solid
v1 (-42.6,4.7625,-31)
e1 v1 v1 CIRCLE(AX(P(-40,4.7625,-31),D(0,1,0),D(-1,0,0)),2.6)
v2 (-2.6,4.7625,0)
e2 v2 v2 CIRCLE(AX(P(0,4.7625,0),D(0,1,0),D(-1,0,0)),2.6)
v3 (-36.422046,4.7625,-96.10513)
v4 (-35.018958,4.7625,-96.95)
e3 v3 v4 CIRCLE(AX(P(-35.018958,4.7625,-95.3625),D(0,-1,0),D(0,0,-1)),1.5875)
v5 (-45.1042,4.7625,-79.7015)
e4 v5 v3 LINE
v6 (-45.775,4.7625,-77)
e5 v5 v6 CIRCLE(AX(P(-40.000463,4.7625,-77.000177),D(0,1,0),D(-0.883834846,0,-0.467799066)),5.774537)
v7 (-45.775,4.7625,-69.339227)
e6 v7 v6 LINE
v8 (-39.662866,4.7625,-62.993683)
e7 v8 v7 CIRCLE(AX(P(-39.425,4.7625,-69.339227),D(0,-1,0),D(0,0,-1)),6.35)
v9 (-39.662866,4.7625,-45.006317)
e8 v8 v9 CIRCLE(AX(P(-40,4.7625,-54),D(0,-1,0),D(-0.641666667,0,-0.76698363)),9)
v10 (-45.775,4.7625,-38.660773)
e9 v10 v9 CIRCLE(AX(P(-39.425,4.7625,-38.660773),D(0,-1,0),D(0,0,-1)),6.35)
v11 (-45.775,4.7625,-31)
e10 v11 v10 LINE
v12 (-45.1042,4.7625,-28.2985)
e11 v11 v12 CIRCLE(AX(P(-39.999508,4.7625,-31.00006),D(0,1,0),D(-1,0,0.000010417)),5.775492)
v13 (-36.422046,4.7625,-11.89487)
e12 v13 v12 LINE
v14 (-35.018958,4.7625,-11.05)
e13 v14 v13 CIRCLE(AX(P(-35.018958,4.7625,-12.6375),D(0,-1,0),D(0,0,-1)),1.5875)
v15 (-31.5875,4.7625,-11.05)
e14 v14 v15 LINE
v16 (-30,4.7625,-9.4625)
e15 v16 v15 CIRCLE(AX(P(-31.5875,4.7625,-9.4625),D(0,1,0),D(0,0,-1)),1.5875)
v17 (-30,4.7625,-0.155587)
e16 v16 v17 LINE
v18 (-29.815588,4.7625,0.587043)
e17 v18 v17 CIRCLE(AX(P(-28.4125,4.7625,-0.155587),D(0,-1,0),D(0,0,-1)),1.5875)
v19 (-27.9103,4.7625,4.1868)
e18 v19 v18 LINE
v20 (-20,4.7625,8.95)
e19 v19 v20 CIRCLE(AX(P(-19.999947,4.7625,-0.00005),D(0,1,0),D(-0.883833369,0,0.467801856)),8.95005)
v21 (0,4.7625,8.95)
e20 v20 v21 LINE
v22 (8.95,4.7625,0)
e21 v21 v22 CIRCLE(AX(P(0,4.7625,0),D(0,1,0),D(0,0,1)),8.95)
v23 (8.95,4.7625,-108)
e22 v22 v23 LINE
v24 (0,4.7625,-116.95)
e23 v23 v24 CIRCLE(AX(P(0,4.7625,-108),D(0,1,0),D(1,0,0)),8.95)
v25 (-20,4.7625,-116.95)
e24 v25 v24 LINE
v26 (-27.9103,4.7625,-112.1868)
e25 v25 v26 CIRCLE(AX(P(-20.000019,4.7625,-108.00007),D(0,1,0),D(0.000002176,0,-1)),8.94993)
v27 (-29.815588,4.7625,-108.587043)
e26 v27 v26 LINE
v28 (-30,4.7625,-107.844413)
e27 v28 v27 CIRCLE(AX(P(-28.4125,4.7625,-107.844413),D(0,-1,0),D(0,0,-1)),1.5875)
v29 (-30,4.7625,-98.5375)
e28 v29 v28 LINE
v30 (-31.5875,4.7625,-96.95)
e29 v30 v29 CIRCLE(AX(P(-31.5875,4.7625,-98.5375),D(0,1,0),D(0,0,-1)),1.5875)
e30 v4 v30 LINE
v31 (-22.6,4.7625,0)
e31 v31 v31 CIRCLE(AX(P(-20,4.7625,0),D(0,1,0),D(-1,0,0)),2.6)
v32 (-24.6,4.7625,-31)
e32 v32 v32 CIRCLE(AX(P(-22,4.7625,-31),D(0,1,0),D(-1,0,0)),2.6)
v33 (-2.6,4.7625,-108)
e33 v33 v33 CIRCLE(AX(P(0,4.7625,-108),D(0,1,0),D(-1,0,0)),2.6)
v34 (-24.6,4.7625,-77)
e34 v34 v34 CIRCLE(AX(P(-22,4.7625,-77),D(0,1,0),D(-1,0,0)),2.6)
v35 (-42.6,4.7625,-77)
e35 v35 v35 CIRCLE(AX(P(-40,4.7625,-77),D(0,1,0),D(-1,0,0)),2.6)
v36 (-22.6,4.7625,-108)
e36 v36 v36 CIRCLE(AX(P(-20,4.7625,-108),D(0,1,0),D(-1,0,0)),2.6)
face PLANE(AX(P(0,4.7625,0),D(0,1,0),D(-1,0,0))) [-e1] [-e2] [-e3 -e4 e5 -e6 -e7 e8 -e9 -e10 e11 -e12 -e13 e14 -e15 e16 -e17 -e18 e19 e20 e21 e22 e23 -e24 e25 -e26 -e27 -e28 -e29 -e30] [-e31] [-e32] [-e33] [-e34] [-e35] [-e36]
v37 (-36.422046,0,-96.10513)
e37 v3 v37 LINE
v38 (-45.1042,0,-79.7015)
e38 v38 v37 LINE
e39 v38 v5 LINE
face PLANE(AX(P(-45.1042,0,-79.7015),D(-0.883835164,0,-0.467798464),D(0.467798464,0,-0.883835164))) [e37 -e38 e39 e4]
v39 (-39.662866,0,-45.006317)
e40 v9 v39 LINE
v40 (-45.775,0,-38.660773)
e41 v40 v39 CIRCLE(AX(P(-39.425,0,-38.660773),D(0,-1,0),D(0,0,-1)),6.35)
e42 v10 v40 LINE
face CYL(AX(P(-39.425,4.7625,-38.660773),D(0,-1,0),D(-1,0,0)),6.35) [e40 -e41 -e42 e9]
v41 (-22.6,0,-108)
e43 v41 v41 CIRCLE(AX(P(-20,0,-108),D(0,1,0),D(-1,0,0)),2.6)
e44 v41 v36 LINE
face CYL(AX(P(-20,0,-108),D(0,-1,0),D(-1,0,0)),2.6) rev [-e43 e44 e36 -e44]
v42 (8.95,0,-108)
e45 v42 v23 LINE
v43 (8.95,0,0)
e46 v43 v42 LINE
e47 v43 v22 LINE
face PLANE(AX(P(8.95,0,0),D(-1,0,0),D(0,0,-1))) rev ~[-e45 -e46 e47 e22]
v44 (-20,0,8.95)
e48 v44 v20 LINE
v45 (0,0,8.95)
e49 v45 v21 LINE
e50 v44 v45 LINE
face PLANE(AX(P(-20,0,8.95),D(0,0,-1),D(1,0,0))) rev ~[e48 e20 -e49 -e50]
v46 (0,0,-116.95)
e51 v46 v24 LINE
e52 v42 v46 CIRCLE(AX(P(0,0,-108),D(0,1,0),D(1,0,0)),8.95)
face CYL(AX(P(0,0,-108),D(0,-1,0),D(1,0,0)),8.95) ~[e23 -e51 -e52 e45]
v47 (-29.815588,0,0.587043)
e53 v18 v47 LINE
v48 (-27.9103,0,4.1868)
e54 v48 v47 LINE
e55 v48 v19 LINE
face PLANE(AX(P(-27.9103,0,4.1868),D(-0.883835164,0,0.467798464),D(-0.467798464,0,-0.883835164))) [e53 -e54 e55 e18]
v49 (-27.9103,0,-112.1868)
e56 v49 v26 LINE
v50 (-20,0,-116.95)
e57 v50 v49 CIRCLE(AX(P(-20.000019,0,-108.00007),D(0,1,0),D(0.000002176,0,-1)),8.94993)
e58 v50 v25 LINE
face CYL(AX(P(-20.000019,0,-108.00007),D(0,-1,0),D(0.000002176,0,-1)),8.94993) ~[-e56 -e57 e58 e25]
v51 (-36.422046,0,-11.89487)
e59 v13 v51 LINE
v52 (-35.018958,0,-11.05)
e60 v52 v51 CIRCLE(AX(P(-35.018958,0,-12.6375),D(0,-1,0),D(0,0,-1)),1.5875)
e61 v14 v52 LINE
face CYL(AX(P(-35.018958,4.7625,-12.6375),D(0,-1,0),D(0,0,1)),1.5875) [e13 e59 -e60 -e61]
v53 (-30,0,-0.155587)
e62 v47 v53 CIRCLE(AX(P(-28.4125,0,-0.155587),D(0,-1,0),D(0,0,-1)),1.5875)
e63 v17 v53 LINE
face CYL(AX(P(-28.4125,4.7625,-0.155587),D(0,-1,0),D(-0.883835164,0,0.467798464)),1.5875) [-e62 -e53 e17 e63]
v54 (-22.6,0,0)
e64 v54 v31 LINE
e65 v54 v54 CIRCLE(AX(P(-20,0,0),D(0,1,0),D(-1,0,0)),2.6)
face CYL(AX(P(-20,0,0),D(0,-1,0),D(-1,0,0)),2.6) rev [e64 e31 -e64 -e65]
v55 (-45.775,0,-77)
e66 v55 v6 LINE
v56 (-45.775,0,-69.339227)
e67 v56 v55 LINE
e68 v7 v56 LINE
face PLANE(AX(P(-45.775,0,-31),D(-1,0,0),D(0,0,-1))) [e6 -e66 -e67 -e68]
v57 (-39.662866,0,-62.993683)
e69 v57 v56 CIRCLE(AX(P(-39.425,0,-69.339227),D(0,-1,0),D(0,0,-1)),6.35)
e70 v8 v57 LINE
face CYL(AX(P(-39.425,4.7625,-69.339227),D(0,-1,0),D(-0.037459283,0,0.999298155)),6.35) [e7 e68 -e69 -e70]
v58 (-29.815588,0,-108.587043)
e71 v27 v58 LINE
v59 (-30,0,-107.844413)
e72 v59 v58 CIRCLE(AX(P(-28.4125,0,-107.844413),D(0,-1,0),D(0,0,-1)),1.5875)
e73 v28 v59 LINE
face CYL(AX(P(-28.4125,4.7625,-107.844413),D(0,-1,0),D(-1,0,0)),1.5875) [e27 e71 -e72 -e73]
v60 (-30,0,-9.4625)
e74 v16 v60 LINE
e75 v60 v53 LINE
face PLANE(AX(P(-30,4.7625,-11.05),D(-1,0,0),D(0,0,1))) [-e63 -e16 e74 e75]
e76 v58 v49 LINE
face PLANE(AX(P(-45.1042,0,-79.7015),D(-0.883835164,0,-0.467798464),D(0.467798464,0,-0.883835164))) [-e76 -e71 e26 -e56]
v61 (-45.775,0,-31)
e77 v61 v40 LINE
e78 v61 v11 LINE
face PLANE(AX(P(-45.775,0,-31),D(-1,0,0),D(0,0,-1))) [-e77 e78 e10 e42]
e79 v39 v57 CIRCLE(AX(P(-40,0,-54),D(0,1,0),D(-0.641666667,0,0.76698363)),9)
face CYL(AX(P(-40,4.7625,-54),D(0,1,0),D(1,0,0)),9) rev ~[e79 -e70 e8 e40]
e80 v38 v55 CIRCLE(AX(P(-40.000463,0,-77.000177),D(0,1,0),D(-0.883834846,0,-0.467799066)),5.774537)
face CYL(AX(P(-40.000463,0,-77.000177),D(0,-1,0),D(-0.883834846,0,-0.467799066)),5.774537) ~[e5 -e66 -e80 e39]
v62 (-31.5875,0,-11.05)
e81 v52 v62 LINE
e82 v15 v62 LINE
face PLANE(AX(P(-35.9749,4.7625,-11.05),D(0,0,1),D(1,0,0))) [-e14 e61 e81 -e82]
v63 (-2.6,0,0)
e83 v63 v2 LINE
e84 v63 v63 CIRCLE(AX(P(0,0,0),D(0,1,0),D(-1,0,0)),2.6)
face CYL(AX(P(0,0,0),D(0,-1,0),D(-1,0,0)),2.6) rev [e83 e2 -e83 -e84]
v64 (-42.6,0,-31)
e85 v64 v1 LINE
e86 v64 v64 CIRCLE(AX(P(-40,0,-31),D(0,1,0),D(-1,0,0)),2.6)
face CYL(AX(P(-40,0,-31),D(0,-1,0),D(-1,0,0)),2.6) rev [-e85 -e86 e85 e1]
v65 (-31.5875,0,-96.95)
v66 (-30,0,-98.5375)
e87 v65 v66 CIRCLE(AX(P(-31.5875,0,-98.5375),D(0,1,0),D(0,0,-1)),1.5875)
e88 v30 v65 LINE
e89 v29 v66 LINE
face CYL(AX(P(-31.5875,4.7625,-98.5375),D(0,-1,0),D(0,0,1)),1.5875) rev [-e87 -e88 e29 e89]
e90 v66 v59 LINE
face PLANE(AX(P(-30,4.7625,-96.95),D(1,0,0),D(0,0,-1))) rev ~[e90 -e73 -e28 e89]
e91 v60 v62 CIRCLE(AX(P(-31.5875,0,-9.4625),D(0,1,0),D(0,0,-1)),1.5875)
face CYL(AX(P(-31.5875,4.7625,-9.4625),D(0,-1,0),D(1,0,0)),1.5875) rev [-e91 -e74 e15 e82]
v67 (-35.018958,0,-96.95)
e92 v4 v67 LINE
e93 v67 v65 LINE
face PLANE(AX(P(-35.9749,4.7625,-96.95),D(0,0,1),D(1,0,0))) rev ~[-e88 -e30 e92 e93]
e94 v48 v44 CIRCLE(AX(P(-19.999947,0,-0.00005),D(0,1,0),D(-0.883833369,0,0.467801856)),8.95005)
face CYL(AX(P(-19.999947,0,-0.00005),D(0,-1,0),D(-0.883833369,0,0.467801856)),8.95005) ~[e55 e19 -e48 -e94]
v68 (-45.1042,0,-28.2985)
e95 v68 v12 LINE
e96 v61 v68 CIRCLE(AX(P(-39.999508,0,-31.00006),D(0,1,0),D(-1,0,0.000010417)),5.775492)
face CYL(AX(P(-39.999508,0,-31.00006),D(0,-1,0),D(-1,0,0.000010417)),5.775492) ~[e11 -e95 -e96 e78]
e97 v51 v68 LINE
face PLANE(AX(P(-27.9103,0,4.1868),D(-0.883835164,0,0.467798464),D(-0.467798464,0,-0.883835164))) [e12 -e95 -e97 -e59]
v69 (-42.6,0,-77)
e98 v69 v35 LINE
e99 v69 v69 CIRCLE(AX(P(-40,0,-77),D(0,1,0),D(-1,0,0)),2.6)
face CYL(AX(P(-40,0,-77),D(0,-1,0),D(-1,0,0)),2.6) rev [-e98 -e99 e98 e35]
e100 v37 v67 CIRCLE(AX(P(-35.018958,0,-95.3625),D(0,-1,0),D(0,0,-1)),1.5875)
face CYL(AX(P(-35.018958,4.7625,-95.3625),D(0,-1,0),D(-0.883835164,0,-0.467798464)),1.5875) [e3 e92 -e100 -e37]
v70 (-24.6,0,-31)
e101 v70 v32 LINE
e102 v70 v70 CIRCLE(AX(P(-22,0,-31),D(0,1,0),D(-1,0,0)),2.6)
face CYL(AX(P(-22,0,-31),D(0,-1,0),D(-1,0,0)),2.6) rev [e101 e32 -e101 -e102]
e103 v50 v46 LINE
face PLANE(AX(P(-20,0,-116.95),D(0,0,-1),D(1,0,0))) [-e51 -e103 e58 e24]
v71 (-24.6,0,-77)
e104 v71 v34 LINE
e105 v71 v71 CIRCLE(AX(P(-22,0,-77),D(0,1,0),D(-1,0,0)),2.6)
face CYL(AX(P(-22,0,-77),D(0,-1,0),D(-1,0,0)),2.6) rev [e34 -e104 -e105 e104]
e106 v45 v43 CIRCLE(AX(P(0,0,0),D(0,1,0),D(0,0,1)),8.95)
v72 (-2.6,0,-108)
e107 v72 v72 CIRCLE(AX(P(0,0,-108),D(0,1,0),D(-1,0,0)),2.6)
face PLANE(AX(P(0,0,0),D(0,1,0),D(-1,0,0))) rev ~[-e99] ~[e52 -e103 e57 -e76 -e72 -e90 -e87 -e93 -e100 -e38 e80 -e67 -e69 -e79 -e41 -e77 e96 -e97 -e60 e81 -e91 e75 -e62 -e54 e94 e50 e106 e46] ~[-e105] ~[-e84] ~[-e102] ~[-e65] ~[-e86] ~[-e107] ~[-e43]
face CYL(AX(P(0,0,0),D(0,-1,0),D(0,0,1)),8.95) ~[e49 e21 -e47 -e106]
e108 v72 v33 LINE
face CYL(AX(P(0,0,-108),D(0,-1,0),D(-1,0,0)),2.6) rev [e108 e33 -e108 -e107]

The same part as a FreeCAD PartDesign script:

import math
import FreeCAD as App
import Part
import Sketcher

V = App.Vector


def edges_at(feature, points):
    """Names of the edges that pass closest to the given points."""
    edges = feature.Shape.Edges
    near = lambda p: min(range(len(edges)), key=lambda i: edges[i].distToShape(Part.Vertex(*p))[0])
    return sorted({f"Edge{near(p) + 1}" for p in points})


def add_polygon(sketch, points):
    """Adds a closed chain of lines whose ends are joined by coincident constraints."""
    first, n = sketch.GeometryCount, len(points)
    for a, b in zip(points, points[1:] + points[:1]):
        sketch.addGeometry(Part.LineSegment(App.Vector(*a, 0), App.Vector(*b, 0)), False)
    for i in range(n):
        sketch.addConstraint(Sketcher.Constraint("Coincident", first + i, 2, first + (i + 1) % n, 1))

doc = App.newDocument("Part")
params = doc.addObject("Spreadsheet::Sheet", "Params")
for row, (alias, value) in enumerate([
    ("sketch1_diameter", "5.2 mm"),
    ("sketch1_width", "20 mm"),
    ("sketch1_height", "46 mm"),
    ("sketch1_radius", "8.95 mm"),
    ("pad1_length", "4.7625 mm"),
    ("sketch2_radius", "9 mm"),
    ("fillet_radius", "6.35 mm"),
    ("fillet2_radius", "1.5875 mm"),
], start=1):
    params.set(f"A{row}", alias)
    params.set(f"B{row}", "=" + value)
    params.setAlias(f"B{row}", alias)

body = doc.addObject("PartDesign::Body", "Body")

sketch1 = body.newObject("Sketcher::SketchObject", "Sketch")
sketch1.AttachmentSupport = (doc.getObject("XZ_Plane"), [""])
sketch1.MapMode = "FlatFace"
sketch1.addGeometry(Part.LineSegment(V(-45.1, -28.3, 0), V(-27.9, 4.2, 0)), False)
sketch1.addGeometry(Part.ArcOfCircle(Part.Circle(V(-20, 0, 0), V(0, 0, 1), 8.9), math.radians(90), math.radians(152)), False)
sketch1.addGeometry(Part.LineSegment(V(-20, 8.9, 0), V(0, 8.9, 0)), False)
sketch1.addGeometry(Part.ArcOfCircle(Part.Circle(V(0, 0, 0), V(0, 0, 1), 8.9), math.radians(0), math.radians(90)), False)
sketch1.addGeometry(Part.LineSegment(V(8.9, 0, 0), V(8.9, -108, 0)), False)
sketch1.addGeometry(Part.ArcOfCircle(Part.Circle(V(0, -108, 0), V(0, 0, 1), 8.9), math.radians(-90), math.radians(0)), False)
sketch1.addGeometry(Part.LineSegment(V(0, -117, 0), V(-20, -117, 0)), False)
sketch1.addGeometry(Part.ArcOfCircle(Part.Circle(V(-20, -108, 0), V(0, 0, 1), 8.9), math.radians(-152), math.radians(-90)), False)
sketch1.addGeometry(Part.LineSegment(V(-27.9, -112.2, 0), V(-45.1, -79.7, 0)), False)
sketch1.addGeometry(Part.ArcOfCircle(Part.Circle(V(-40, -77, 0), V(0, 0, 1), 5.8), math.radians(180), math.radians(208)), False)
sketch1.addGeometry(Part.LineSegment(V(-45.8, -77, 0), V(-45.8, -31, 0)), False)
sketch1.addGeometry(Part.ArcOfCircle(Part.Circle(V(-40, -31, 0), V(0, 0, 1), 5.8), math.radians(152), math.radians(180)), False)
sketch1.addGeometry(Part.Circle(V(0, -108, 0), V(0, 0, 1), 2.6), False)
sketch1.addGeometry(Part.Circle(V(-20, -108, 0), V(0, 0, 1), 2.6), False)
sketch1.addGeometry(Part.Circle(V(-22, -77, 0), V(0, 0, 1), 2.6), False)
sketch1.addGeometry(Part.Circle(V(-40, -77, 0), V(0, 0, 1), 2.6), False)
sketch1.addGeometry(Part.Circle(V(0, 0, 0), V(0, 0, 1), 2.6), False)
sketch1.addGeometry(Part.Circle(V(-22, -31, 0), V(0, 0, 1), 2.6), False)
sketch1.addGeometry(Part.Circle(V(-40, -31, 0), V(0, 0, 1), 2.6), False)
sketch1.addGeometry(Part.Circle(V(-20, 0, 0), V(0, 0, 1), 2.6), False)
sketch1.addConstraint(Sketcher.Constraint("Tangent", 0, 2, 1, 2))
sketch1.addConstraint(Sketcher.Constraint("Tangent", 1, 1, 2, 1))
sketch1.addConstraint(Sketcher.Constraint("Tangent", 2, 2, 3, 2))
sketch1.addConstraint(Sketcher.Constraint("Tangent", 3, 1, 4, 1))
sketch1.addConstraint(Sketcher.Constraint("Tangent", 4, 2, 5, 2))
sketch1.addConstraint(Sketcher.Constraint("Tangent", 5, 1, 6, 1))
sketch1.addConstraint(Sketcher.Constraint("Tangent", 6, 2, 7, 2))
sketch1.addConstraint(Sketcher.Constraint("Tangent", 7, 1, 8, 1))
sketch1.addConstraint(Sketcher.Constraint("Tangent", 8, 2, 9, 2))
sketch1.addConstraint(Sketcher.Constraint("Tangent", 9, 1, 10, 1))
sketch1.addConstraint(Sketcher.Constraint("Tangent", 10, 2, 11, 2))
sketch1.addConstraint(Sketcher.Constraint("Tangent", 11, 1, 0, 1))
sketch1.addConstraint(Sketcher.Constraint("Horizontal", 2))
sketch1.addConstraint(Sketcher.Constraint("Vertical", 4))
sketch1.addConstraint(Sketcher.Constraint("Horizontal", 6))
sketch1.addConstraint(Sketcher.Constraint("Vertical", 10))
sketch1.addConstraint(Sketcher.Constraint("Coincident", 3, 3, -1, 1))
sketch1.addConstraint(Sketcher.Constraint("Coincident", 16, 3, -1, 1))
sketch1.addConstraint(Sketcher.Constraint("Coincident", 12, 3, 5, 3))
sketch1.addConstraint(Sketcher.Constraint("Coincident", 13, 3, 7, 3))
sketch1.addConstraint(Sketcher.Constraint("Coincident", 15, 3, 9, 3))
sketch1.addConstraint(Sketcher.Constraint("Coincident", 18, 3, 11, 3))
sketch1.addConstraint(Sketcher.Constraint("Coincident", 19, 3, 1, 3))
sketch1.addConstraint(Sketcher.Constraint("Equal", 1, 3))
sketch1.addConstraint(Sketcher.Constraint("Equal", 3, 5))
sketch1.addConstraint(Sketcher.Constraint("Equal", 5, 7))
sketch1.addConstraint(Sketcher.Constraint("Equal", 9, 11))
sketch1.addConstraint(Sketcher.Constraint("Equal", 12, 13))
sketch1.addConstraint(Sketcher.Constraint("Equal", 13, 14))
sketch1.addConstraint(Sketcher.Constraint("Equal", 14, 15))
sketch1.addConstraint(Sketcher.Constraint("Equal", 15, 16))
sketch1.addConstraint(Sketcher.Constraint("Equal", 16, 17))
sketch1.addConstraint(Sketcher.Constraint("Equal", 17, 18))
sketch1.addConstraint(Sketcher.Constraint("Equal", 18, 19))
sketch1.addConstraint(Sketcher.Constraint("Horizontal", 9, 3, 14, 3))
sketch1.addConstraint(Sketcher.Constraint("Horizontal", 11, 3, 17, 3))
sketch1.addConstraint(Sketcher.Constraint("Vertical", 1, 3, 7, 3))
sketch1.addConstraint(Sketcher.Constraint("Vertical", 14, 3, 17, 3))
sketch1.addConstraint(Sketcher.Constraint("Vertical", 0, 2, 7, 1))
sketch1.addConstraint(Sketcher.Constraint("Diameter", 12, 5.2))
sketch1.addConstraint(Sketcher.Constraint("DistanceX", 2, 1, 2, 2, 20.0))
sketch1.addConstraint(Sketcher.Constraint("DistanceY", 10, 1, 10, 2, 46.0))
sketch1.addConstraint(Sketcher.Constraint("DistanceY", 11, 3, -1, 1, 31.0))
sketch1.addConstraint(Sketcher.Constraint("DistanceX", 14, 3, -1, 1, 22.0))
sketch1.addConstraint(Sketcher.Constraint("DistanceX", 9, 3, 7, 3, 20.0))
sketch1.addConstraint(Sketcher.Constraint("Radius", 1, 8.95))
sketch1.addConstraint(Sketcher.Constraint("Radius", 9, 5.775))
sketch1.setExpression("Constraints[39]", "Params.sketch1_diameter")
sketch1.setExpression("Constraints[40]", "Params.sketch1_width")
sketch1.setExpression("Constraints[41]", "Params.sketch1_height")
sketch1.setExpression("Constraints[45]", "Params.sketch1_radius")
pad1 = body.newObject("PartDesign::Pad", "Pad")
pad1.Profile = sketch1
pad1.setExpression("Length", "Params.pad1_length")
pad1.Reversed = True

sketch2 = body.newObject("Sketcher::SketchObject", "Sketch001")
sketch2.AttachmentSupport = (doc.getObject("XZ_Plane"), [""])
sketch2.MapMode = "FlatFace"
sketch2.AttachmentOffset = App.Placement(V(0, 0, -4.7625), App.Rotation())
sketch2.addGeometry(Part.LineSegment(V(-46, -61, 0), V(-46, -47, 0)), False)
sketch2.addGeometry(Part.ArcOfCircle(Part.Circle(V(-40, -54, 0), V(0, 0, 1), 9), math.radians(-130), math.radians(130)), False)
sketch2.addConstraint(Sketcher.Constraint("Coincident", 0, 1, 1, 1))
sketch2.addConstraint(Sketcher.Constraint("Coincident", 1, 2, 0, 2))
sketch2.addConstraint(Sketcher.Constraint("Vertical", 0))
sketch2.addConstraint(Sketcher.Constraint("Radius", 1, 9.0))
sketch2.addConstraint(Sketcher.Constraint("DistanceX", 1, 3, -1, 1, 40.0))
sketch2.addConstraint(Sketcher.Constraint("DistanceY", 1, 3, -1, 1, 54.0))
sketch2.addConstraint(Sketcher.Constraint("DistanceY", 0, 1, 0, 2, 13.8057))
sketch2.setExpression("Constraints[3]", "Params.sketch2_radius")
pocket1 = body.newObject("PartDesign::Pocket", "Pocket")
pocket1.Profile = sketch2
pocket1.Type = "ThroughAll"
pocket1.Reversed = True
doc.recompute()

fillet = body.newObject("PartDesign::Fillet", "Fillet")
fillet.Base = (pocket1, edges_at(pocket1, [(-45.775, 2.381, -47.097), (-45.775, 2.381, -60.903)]))
fillet.setExpression("Radius", "Params.fillet_radius")

sketch3 = body.newObject("Sketcher::SketchObject", "Sketch002")
sketch3.AttachmentSupport = (doc.getObject("XZ_Plane"), [""])
sketch3.MapMode = "FlatFace"
sketch3.AttachmentOffset = App.Placement(V(0, 0, -4.7625), App.Rotation())
add_polygon(sketch3, [(-30, -11), (-36, -11), (-30, 0)])
add_polygon(sketch3, [(-30, -97), (-30, -108), (-36, -97)])
sketch3.addConstraint(Sketcher.Constraint("Horizontal", 0))
sketch3.addConstraint(Sketcher.Constraint("Vertical", 2))
sketch3.addConstraint(Sketcher.Constraint("Vertical", 3))
sketch3.addConstraint(Sketcher.Constraint("Horizontal", 5))
sketch3.addConstraint(Sketcher.Constraint("Vertical", 2, 2, 3, 2))
sketch3.addConstraint(Sketcher.Constraint("Vertical", 0, 2, 4, 2))
sketch3.addConstraint(Sketcher.Constraint("Equal", 2, 3))
sketch3.addConstraint(Sketcher.Constraint("DistanceX", 1, 2, -1, 1, 30.0))
sketch3.addConstraint(Sketcher.Constraint("DistanceY", 4, 2, 0, 2, 85.9))
sketch3.addConstraint(Sketcher.Constraint("DistanceX", 0, 2, 0, 1, 5.975))
sketch3.addConstraint(Sketcher.Constraint("DistanceY", 0, 2, -1, 1, 11.05))
sketch3.addConstraint(Sketcher.Constraint("DistanceY", 2, 2, 2, 1, 11.2887))
pocket2 = body.newObject("PartDesign::Pocket", "Pocket001")
pocket2.Profile = sketch3
pocket2.Type = "ThroughAll"
pocket2.Reversed = True
doc.recompute()

fillet2 = body.newObject("PartDesign::Fillet", "Fillet001")
fillet2.Base = (pocket2, edges_at(pocket2, [
    (-30, 2.381, -11.05),
    (-30, 2.381, 0.239),
    (-35.975, 2.381, -11.05),
    (-35.975, 2.381, -96.95),
    (-30, 2.381, -96.95),
    (-30, 2.381, -108.239),
]))
fillet2.setExpression("Radius", "Params.fillet2_radius")

doc.recompute()
